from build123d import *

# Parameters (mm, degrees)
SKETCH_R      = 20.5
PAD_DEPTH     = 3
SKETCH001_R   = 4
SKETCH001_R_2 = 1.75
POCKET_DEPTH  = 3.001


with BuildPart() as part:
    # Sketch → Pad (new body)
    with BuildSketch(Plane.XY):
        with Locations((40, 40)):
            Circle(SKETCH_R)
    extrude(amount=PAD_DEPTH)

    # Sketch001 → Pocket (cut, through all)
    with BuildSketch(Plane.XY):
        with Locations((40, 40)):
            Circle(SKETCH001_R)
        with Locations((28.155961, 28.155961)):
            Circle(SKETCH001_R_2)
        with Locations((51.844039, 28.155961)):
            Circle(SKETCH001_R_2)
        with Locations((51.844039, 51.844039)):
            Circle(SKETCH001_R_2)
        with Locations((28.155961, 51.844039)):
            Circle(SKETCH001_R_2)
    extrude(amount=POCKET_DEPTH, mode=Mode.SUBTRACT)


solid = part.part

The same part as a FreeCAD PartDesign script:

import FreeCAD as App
import Part
import Sketcher
from FreeCAD import Vector
Q = App.Units.Quantity

doc = App.newDocument("Part")
body = doc.addObject("PartDesign::Body", "Body")

# Sketch on XY plane
sketch1 = body.newObject("Sketcher::SketchObject", "Sketch")
sketch1.AttachmentSupport = (doc.getObject("XY_Plane"), [""])
sketch1.MapMode = "FlatFace"
sketch1.addGeometry(Part.Circle(Vector(40, 40, 0), Vector(0, 0, 1), 20), False)
sketch1.addConstraint([
    Sketcher.Constraint("Diameter", 0, Q("41 mm")),
    Sketcher.Constraint("DistanceX", -1, 1, 0, 3, Q("40 mm")),
    Sketcher.Constraint("DistanceY", -1, 1, 0, 3, Q("40 mm")),
])
pad1 = body.newObject("PartDesign::Pad", "Pad")
pad1.Profile = sketch1
pad1.Length = 3

# Sketch on XY plane
sketch2 = body.newObject("Sketcher::SketchObject", "Sketch001")
sketch2.AttachmentSupport = (doc.getObject("XY_Plane"), [""])
sketch2.MapMode = "FlatFace"
sketch2.addGeometry([
    Part.Circle(Vector(40, 40, 0), Vector(0, 0, 1), 4),  # 0
    Part.Circle(Vector(28.2, 28.2, 0), Vector(0, 0, 1), 1.8),  # 1
    Part.Circle(Vector(51.8, 28.2, 0), Vector(0, 0, 1), 1.8),  # 2
    Part.Circle(Vector(51.8, 51.8, 0), Vector(0, 0, 1), 1.8),  # 3
    Part.Circle(Vector(28.2, 51.8, 0), Vector(0, 0, 1), 1.8),  # 4
], False)
sketch2.addConstraint([
    Sketcher.Constraint("Equal", 1, 2),
    Sketcher.Constraint("Equal", 2, 3),
    Sketcher.Constraint("Equal", 3, 4),
    Sketcher.Constraint("Horizontal", 1, 3, 2, 3),
    Sketcher.Constraint("Horizontal", 3, 3, 4, 3),
    Sketcher.Constraint("Vertical", 2, 3, 3, 3),
    Sketcher.Constraint("Vertical", 1, 3, 4, 3),
    Sketcher.Constraint("Diameter", 0, Q("8 mm")),
    Sketcher.Constraint("Diameter", 1, Q("3.5 mm")),
    Sketcher.Constraint("DistanceX", -1, 1, 0, 3, Q("40 mm")),
    Sketcher.Constraint("DistanceY", -1, 1, 0, 3, Q("40 mm")),
    Sketcher.Constraint("DistanceX", -1, 1, 1, 3, Q("28.155961 mm")),
    Sketcher.Constraint("DistanceY", -1, 1, 1, 3, Q("28.155961 mm")),
    Sketcher.Constraint("DistanceX", -1, 1, 2, 3, Q("51.844039 mm")),
    Sketcher.Constraint("DistanceY", -1, 1, 3, 3, Q("51.844039 mm")),
])
pocket1 = body.newObject("PartDesign::Pocket", "Pocket")
pocket1.Profile = sketch2
pocket1.Type = "ThroughAll"
pocket1.Reversed = True

doc.recompute()
